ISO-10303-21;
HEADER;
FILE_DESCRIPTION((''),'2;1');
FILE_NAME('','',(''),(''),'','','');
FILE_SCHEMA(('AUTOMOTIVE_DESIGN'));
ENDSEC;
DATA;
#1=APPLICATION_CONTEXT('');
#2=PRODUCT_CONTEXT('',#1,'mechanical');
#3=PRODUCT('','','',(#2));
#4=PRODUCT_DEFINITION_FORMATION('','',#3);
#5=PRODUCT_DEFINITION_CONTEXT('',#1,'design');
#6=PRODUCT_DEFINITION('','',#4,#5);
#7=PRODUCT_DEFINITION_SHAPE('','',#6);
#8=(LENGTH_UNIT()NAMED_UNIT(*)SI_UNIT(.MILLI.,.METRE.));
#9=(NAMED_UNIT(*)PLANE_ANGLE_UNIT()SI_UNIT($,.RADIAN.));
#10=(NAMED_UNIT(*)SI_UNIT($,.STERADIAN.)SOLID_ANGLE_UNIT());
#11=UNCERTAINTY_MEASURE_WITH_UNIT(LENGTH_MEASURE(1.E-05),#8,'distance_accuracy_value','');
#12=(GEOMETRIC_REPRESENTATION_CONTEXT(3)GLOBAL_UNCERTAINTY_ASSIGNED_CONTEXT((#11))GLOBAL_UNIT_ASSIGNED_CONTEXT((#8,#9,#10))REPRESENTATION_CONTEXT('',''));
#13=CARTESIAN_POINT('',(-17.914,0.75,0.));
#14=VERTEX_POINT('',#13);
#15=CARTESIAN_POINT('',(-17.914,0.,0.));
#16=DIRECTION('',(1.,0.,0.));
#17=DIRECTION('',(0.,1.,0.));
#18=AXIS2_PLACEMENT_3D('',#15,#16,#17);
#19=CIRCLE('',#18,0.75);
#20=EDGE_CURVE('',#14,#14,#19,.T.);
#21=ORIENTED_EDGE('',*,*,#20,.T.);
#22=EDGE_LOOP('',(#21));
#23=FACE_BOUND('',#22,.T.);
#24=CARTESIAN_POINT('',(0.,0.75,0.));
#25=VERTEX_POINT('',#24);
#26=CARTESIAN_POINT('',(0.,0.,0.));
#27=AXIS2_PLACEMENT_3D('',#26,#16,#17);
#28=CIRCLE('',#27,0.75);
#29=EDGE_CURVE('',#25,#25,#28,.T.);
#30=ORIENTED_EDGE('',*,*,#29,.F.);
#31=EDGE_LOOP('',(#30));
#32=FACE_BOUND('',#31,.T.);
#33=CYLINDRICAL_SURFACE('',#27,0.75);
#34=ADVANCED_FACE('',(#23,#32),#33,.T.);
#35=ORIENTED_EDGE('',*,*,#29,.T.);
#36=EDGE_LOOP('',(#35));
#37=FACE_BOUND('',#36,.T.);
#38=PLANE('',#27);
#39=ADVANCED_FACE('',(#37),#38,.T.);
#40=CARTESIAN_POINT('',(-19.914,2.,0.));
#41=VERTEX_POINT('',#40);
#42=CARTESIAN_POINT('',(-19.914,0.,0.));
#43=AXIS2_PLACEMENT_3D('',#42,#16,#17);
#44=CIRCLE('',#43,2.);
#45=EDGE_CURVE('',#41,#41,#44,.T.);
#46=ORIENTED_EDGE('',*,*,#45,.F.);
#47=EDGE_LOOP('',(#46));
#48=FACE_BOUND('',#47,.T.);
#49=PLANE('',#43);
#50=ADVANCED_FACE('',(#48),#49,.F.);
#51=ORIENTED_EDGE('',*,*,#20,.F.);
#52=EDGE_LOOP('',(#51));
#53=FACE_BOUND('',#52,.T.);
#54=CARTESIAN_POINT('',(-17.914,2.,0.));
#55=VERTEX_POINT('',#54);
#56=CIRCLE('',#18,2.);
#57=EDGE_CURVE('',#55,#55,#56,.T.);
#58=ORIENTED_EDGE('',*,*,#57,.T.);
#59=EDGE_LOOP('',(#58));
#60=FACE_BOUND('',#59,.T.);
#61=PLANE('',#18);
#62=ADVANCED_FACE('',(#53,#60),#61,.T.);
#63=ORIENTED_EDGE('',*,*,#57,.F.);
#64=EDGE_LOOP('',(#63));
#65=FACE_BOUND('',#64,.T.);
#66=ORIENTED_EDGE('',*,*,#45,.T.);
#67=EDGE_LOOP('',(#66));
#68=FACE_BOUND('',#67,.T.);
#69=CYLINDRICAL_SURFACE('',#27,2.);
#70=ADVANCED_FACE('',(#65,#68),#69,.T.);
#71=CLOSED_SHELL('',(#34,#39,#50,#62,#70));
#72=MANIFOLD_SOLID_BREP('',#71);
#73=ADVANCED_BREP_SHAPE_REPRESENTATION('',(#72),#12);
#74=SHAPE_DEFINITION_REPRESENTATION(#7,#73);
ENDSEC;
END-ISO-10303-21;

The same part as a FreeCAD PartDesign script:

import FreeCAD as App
import Part
import Sketcher
from FreeCAD import Vector

doc = App.newDocument("Part")
body = doc.addObject("PartDesign::Body", "Body")

sketch1 = body.newObject("Sketcher::SketchObject", "Sketch")
sketch1.AttachmentSupport = (doc.getObject("XY_Plane"), [""])
sketch1.MapMode = "FlatFace"
sketch1.addGeometry([
    Part.LineSegment(Vector(0, 0, 0), Vector(0, 0.75, 0)),
    Part.LineSegment(Vector(0, 0.75, 0), Vector(-17.914, 0.75, 0)),
    Part.LineSegment(Vector(-17.914, 0.75, 0), Vector(-17.914, 2, 0)),
    Part.LineSegment(Vector(-17.914, 2, 0), Vector(-19.914, 2, 0)),
    Part.LineSegment(Vector(-19.914, 2, 0), Vector(-19.914, 0, 0)),
    Part.LineSegment(Vector(-19.914, 0, 0), Vector(0, 0, 0)),
], False)
sketch1.addConstraint([
    Sketcher.Constraint("Coincident", 0, 2, 1, 1),
    Sketcher.Constraint("Coincident", 1, 2, 2, 1),
    Sketcher.Constraint("Coincident", 2, 2, 3, 1),
    Sketcher.Constraint("Coincident", 3, 2, 4, 1),
    Sketcher.Constraint("Coincident", 4, 2, 5, 1),
    Sketcher.Constraint("Coincident", 5, 2, 0, 1),
    Sketcher.Constraint("Vertical", 0),
    Sketcher.Constraint("Horizontal", 1),
    Sketcher.Constraint("Vertical", 2),
    Sketcher.Constraint("Horizontal", 3),
    Sketcher.Constraint("Vertical", 4),
    Sketcher.Constraint("Horizontal", 5),
    Sketcher.Constraint("Coincident", 5, 2, -1, 1),
    Sketcher.Constraint("Equal", 3, 4),
    Sketcher.Constraint("DistanceX", 3, 2, 3, 1, 2.0),
    Sketcher.Constraint("DistanceY", 0, 1, 0, 2, 0.75),
    Sketcher.Constraint("DistanceX", 1, 2, 1, 1, 17.914),
])
revolution = body.newObject("PartDesign::Revolution", "Revolution")
revolution.Profile = sketch1
revolution.ReferenceAxis = (sketch1, ["H_Axis"])
revolution.Angle = 360

doc.recompute()
